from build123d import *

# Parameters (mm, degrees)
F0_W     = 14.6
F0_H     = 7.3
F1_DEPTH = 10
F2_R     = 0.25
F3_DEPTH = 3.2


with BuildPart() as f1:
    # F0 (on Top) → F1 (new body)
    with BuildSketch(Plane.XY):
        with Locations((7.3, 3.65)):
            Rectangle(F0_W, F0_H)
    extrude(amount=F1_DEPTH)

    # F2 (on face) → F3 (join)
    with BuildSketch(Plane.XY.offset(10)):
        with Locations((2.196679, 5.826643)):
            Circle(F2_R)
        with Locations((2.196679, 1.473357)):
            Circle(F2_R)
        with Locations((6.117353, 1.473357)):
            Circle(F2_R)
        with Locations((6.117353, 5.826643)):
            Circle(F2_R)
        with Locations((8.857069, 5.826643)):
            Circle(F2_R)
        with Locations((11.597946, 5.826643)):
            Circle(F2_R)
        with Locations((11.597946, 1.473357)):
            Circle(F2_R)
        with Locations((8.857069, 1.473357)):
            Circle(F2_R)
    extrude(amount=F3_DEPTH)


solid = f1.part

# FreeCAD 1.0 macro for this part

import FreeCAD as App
import Part
import Sketcher
from FreeCAD import Vector

doc = App.newDocument("Part")
body = doc.addObject("PartDesign::Body", "Body")

# Sketch on XY plane
sketch1 = doc.addObject("Sketcher::SketchObject", "Sketch")
body.addObject(sketch1)
sketch1.AttachmentSupport = (doc.XY_Plane, [""])
sketch1.MapMode = "FlatFace"
sketch1.addGeometry([
    Part.LineSegment(Vector(0, 7, 0), Vector(0, 0, 0)),
    Part.LineSegment(Vector(0, 0, 0), Vector(15, 0, 0)),
    Part.LineSegment(Vector(15, 0, 0), Vector(15, 7, 0)),
    Part.LineSegment(Vector(15, 7, 0), Vector(0, 7, 0)),
], False)
sketch1.addConstraint([
    Sketcher.Constraint("Coincident", 0, 2, 1, 1),
    Sketcher.Constraint("Coincident", 1, 2, 2, 1),
    Sketcher.Constraint("Coincident", 2, 2, 3, 1),
    Sketcher.Constraint("Coincident", 3, 2, 0, 1),
    Sketcher.Constraint("Vertical", 0),
    Sketcher.Constraint("Horizontal", 1),
    Sketcher.Constraint("Vertical", 2),
    Sketcher.Constraint("Horizontal", 3),
    Sketcher.Constraint("Coincident", 0, 2, -1, 1),
    Sketcher.Constraint("DistanceX", 1, 1, 1, 2, 14.6),
    Sketcher.Constraint("DistanceY", 0, 2, 0, 1, 7.3),
])
pad1 = doc.addObject("PartDesign::Pad", "Pad")
body.addObject(pad1)
pad1.Profile = sketch1
pad1.Length = 10

# Sketch on XY plane
sketch2 = doc.addObject("Sketcher::SketchObject", "Sketch001")
body.addObject(sketch2)
sketch2.AttachmentSupport = (doc.XY_Plane, [""])
sketch2.MapMode = "FlatFace"
sketch2.AttachmentOffset = App.Placement(Vector(0, 0, 10), App.Rotation())
sketch2.addGeometry([
    Part.Circle(Vector(2.2, 5.83, 0), Vector(0, 0, 1), 0.25),  # 0
    Part.Circle(Vector(2.2, 1.47, 0), Vector(0, 0, 1), 0.25),  # 1
    Part.Circle(Vector(6.12, 1.47, 0), Vector(0, 0, 1), 0.25),  # 2
    Part.Circle(Vector(6.12, 5.83, 0), Vector(0, 0, 1), 0.25),  # 3
    Part.Circle(Vector(8.86, 5.83, 0), Vector(0, 0, 1), 0.25),  # 4
    Part.Circle(Vector(11.6, 5.83, 0), Vector(0, 0, 1), 0.25),  # 5
    Part.Circle(Vector(11.6, 1.47, 0), Vector(0, 0, 1), 0.25),  # 6
    Part.Circle(Vector(8.86, 1.47, 0), Vector(0, 0, 1), 0.25),  # 7
], False)
sketch2.addConstraint([
    Sketcher.Constraint("Equal", 0, 1),
    Sketcher.Constraint("Equal", 1, 2),
    Sketcher.Constraint("Equal", 2, 3),
    Sketcher.Constraint("Equal", 3, 4),
    Sketcher.Constraint("Equal", 4, 5),
    Sketcher.Constraint("Equal", 5, 6),
    Sketcher.Constraint("Equal", 6, 7),
    Sketcher.Constraint("Horizontal", 1, 3, 2, 3),
    Sketcher.Constraint("Horizontal", 0, 3, 3, 3),
    Sketcher.Constraint("Horizontal", 3, 3, 4, 3),
    Sketcher.Constraint("Horizontal", 4, 3, 5, 3),
    Sketcher.Constraint("Horizontal", 2, 3, 6, 3),
    Sketcher.Constraint("Horizontal", 6, 3, 7, 3),
    Sketcher.Constraint("Vertical", 0, 3, 1, 3),
    Sketcher.Constraint("Vertical", 2, 3, 3, 3),
    Sketcher.Constraint("Vertical", 5, 3, 6, 3),
    Sketcher.Constraint("Vertical", 4, 3, 7, 3),
    Sketcher.Constraint("Diameter", 0, 0.5),
    Sketcher.Constraint("DistanceX", -1, 1, 0, 3, 2.196679),
    Sketcher.Constraint("DistanceX", -1, 1, 4, 3, 8.857069),
    Sketcher.Constraint("DistanceY", -1, 1, 0, 3, 5.826643),
    Sketcher.Constraint("DistanceY", -1, 1, 1, 3, 1.473357),
    Sketcher.Constraint("DistanceX", -1, 1, 2, 3, 6.117353),
    Sketcher.Constraint("DistanceX", -1, 1, 5, 3, 11.597946),
])
pad2 = doc.addObject("PartDesign::Pad", "Pad001")
body.addObject(pad2)
pad2.Profile = sketch2
pad2.Length = 3.2

doc.recompute()
